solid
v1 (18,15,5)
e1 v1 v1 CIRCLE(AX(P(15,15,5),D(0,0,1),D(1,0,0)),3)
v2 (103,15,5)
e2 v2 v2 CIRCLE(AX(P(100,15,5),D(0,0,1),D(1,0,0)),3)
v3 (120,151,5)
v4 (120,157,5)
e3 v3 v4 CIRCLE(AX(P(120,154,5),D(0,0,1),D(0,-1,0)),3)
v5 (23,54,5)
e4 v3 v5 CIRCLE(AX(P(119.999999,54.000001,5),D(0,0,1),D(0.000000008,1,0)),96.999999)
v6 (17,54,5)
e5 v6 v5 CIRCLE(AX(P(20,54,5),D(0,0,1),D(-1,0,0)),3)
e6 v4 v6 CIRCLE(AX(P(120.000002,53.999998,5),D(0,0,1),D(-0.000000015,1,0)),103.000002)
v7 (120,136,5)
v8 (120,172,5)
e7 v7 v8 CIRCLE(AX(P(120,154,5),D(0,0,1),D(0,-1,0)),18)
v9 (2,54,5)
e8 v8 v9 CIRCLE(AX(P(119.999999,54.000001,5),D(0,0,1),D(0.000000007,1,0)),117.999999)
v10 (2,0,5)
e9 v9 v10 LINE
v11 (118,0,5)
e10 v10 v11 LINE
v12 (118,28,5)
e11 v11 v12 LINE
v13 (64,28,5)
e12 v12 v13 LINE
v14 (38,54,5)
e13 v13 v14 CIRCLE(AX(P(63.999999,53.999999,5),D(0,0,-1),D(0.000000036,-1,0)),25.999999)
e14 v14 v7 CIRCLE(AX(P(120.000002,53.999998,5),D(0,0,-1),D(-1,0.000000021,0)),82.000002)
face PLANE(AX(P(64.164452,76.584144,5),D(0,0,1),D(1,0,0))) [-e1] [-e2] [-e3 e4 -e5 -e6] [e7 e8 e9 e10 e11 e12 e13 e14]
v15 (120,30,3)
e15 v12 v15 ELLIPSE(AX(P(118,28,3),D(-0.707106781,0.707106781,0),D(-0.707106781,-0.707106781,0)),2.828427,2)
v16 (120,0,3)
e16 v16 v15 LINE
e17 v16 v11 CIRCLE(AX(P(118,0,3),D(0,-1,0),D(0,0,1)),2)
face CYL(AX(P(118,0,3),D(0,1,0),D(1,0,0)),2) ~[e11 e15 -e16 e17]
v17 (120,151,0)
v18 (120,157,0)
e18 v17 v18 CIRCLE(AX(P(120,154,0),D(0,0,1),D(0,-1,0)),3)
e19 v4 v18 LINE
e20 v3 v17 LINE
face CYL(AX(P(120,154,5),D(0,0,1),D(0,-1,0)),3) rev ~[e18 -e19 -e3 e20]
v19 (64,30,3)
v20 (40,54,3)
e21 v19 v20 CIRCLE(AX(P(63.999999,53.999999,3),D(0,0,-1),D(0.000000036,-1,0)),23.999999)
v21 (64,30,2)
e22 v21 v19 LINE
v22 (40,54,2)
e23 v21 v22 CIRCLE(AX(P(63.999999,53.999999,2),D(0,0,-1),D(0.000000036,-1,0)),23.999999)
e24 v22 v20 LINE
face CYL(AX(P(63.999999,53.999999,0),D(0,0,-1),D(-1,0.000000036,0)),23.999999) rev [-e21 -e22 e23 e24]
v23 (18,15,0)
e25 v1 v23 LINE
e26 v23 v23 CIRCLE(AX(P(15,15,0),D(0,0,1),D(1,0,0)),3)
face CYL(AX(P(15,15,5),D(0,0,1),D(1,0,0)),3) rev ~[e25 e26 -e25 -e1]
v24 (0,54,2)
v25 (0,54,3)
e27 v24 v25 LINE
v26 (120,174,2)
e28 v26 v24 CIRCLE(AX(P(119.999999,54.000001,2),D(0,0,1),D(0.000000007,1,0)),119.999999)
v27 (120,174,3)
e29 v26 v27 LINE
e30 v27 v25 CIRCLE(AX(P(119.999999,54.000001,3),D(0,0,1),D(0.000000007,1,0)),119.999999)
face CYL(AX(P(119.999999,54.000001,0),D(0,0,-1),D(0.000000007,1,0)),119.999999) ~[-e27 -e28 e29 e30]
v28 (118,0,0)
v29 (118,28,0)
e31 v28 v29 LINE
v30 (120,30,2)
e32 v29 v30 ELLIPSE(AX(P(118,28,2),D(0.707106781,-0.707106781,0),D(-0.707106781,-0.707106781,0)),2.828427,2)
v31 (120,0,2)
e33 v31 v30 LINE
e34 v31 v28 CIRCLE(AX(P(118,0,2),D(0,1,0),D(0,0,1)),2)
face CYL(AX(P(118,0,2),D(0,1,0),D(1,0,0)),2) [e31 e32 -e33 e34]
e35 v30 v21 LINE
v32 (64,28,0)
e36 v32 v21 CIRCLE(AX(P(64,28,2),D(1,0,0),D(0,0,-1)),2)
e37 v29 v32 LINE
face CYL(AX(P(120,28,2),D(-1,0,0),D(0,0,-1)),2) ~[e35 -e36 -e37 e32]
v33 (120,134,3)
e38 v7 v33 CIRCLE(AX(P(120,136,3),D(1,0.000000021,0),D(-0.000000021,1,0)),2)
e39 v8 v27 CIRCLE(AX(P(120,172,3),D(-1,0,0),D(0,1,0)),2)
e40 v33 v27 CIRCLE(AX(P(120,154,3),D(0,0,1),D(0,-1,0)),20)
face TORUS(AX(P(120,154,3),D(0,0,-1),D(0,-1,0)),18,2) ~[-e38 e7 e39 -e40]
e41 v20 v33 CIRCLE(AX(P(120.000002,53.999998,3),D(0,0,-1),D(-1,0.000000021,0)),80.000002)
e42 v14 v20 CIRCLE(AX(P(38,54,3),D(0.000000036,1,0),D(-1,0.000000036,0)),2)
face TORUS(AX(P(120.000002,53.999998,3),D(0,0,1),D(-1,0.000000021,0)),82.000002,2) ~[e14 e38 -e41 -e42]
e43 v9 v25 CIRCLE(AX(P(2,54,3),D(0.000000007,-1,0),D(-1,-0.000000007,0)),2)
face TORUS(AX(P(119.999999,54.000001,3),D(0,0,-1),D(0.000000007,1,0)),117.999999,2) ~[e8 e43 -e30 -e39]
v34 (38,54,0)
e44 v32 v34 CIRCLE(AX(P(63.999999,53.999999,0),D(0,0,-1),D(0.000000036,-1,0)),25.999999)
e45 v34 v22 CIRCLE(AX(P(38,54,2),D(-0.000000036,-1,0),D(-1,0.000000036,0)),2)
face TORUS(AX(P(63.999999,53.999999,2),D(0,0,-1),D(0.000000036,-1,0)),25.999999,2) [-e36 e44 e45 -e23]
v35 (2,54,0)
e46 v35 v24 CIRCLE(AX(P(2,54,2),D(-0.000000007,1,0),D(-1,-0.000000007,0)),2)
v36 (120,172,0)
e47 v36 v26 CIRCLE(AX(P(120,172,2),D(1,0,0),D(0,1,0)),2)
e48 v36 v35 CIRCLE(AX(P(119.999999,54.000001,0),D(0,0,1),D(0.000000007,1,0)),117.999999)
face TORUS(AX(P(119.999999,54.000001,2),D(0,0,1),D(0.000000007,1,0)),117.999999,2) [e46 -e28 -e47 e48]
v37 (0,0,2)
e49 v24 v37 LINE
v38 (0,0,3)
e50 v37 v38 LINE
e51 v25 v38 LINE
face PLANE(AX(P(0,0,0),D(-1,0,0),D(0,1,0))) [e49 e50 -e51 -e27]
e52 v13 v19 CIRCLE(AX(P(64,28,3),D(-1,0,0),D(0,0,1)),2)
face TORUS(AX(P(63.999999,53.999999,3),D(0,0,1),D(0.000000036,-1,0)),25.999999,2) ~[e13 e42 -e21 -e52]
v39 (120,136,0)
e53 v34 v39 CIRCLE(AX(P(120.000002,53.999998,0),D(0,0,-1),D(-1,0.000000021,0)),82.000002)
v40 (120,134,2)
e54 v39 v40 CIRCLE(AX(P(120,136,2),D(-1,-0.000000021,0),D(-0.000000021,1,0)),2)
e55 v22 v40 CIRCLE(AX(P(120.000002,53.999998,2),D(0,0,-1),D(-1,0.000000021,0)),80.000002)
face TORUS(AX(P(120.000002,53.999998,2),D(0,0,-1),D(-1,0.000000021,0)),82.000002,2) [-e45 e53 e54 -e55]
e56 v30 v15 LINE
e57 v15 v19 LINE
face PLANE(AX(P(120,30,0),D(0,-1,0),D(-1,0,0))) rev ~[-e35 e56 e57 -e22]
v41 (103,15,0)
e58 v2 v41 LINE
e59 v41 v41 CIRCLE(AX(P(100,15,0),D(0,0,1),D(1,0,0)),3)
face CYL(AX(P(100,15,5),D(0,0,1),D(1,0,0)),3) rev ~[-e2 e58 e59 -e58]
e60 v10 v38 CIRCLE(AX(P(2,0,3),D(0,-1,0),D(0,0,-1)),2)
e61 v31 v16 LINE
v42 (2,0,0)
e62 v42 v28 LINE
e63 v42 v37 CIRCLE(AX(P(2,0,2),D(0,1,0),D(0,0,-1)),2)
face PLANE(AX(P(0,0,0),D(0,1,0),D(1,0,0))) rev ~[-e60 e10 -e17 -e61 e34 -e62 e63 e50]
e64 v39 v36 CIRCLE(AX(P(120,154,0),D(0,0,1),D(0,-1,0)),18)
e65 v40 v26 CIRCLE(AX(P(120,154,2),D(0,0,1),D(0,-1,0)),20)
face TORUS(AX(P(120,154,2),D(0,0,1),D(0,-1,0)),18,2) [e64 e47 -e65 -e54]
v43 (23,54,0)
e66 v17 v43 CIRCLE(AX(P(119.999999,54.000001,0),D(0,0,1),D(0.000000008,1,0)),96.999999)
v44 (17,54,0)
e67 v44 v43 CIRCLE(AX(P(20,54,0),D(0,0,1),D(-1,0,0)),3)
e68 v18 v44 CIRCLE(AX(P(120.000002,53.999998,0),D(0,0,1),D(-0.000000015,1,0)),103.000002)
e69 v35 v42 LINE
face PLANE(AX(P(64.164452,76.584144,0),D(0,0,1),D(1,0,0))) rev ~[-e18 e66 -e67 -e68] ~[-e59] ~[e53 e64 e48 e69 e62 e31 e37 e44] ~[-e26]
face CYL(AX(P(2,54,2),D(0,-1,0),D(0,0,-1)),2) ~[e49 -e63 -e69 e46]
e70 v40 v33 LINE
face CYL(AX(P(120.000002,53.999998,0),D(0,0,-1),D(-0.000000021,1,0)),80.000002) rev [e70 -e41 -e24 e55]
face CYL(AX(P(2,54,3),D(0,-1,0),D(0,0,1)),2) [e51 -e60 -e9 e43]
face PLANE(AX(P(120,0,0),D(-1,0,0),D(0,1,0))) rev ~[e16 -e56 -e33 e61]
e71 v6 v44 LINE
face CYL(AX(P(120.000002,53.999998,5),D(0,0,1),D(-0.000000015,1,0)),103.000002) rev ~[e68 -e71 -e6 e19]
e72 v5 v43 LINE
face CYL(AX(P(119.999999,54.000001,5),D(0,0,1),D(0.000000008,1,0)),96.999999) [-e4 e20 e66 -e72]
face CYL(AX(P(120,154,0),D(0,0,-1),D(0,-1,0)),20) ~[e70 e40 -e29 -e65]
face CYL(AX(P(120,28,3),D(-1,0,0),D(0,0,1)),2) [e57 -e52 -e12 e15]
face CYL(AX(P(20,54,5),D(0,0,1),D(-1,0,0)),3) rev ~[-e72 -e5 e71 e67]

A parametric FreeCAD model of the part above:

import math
import FreeCAD as App
import Part
import Sketcher
Q = App.Units.Quantity


def edges_at(feature, points):
    """Names of the edges that pass closest to the given points."""
    edges = feature.Shape.Edges
    near = lambda p: min(range(len(edges)), key=lambda i: edges[i].distToShape(Part.Vertex(*p))[0])
    return sorted({f"Edge{near(p) + 1}" for p in points})

doc = App.newDocument("Part")
params = doc.addObject("Spreadsheet::Sheet", "Params")
for row, (alias, value) in enumerate([
    ("sketch1_radius", "23.999999 mm"),
    ("sketch1_radius2", "80.000002 mm"),
    ("sketch1_radius3", "20 mm"),
    ("sketch1_height", "30 mm"),
    ("pad1_length", "5 mm"),
    ("sketch2_diameter", "6 mm"),
    ("sketch3_radius", "103.000002 mm"),
    ("sketch3_radius2", "3 mm"),
    ("fillet_radius", "2 mm"),
], start=1):
    params.set(f"A{row}", alias)
    params.set(f"B{row}", "=" + value)
    params.setAlias(f"B{row}", alias)

body = doc.addObject("PartDesign::Body", "Body")

# Sketch on XY plane
sketch1 = doc.addObject("Sketcher::SketchObject", "Sketch")
body.addObject(sketch1)
sketch1.AttachmentSupport = (doc.XY_Plane, [""])
sketch1.MapMode = "FlatFace"
sketch1.addGeometry([
    Part.LineSegment(App.Vector(0, 0, 0), App.Vector(120, 0, 0)),  # 0
    Part.LineSegment(App.Vector(120, 0, 0), App.Vector(120, 30, 0)),  # 1
    Part.LineSegment(App.Vector(120, 30, 0), App.Vector(64, 30, 0)),  # 2
    Part.ArcOfCircle(Part.Circle(App.Vector(64, 54, 0), App.Vector(0, 0, 1), 24), math.radians(180), math.radians(270)),  # 3
    Part.ArcOfCircle(Part.Circle(App.Vector(120, 54, 0), App.Vector(0, 0, 1), 80), math.radians(90), math.radians(180)),  # 4
    Part.ArcOfCircle(Part.Circle(App.Vector(120, 154, 0), App.Vector(0, 0, 1), 20), math.radians(-90), math.radians(90)),  # 5
    Part.ArcOfCircle(Part.Circle(App.Vector(120, 54, 0), App.Vector(0, 0, 1), 120), math.radians(90), math.radians(180)),  # 6
    Part.LineSegment(App.Vector(0, 54, 0), App.Vector(0, 0, 0)),  # 7
], False)
sketch1.addConstraint([
    Sketcher.Constraint("Coincident", 0, 2, 1, 1),
    Sketcher.Constraint("Coincident", 1, 2, 2, 1),
    Sketcher.Constraint("Tangent", 2, 2, 3, 2),
    Sketcher.Constraint("Tangent", 3, 1, 4, 2),
    Sketcher.Constraint("Tangent", 4, 1, 5, 1),
    Sketcher.Constraint("Tangent", 5, 2, 6, 1),
    Sketcher.Constraint("Tangent", 6, 2, 7, 1),
    Sketcher.Constraint("Coincident", 7, 2, 0, 1),
    Sketcher.Constraint("Horizontal", 0),
    Sketcher.Constraint("Vertical", 1),
    Sketcher.Constraint("Horizontal", 2),
    Sketcher.Constraint("Vertical", 7),
    Sketcher.Constraint("Coincident", 7, 2, -1, 1),
    Sketcher.Constraint("Coincident", 6, 3, 4, 3),
    Sketcher.Constraint("Horizontal", 3, 3, 4, 3),
    Sketcher.Constraint("Vertical", 4, 3, 5, 3),
    Sketcher.Constraint("Vertical", 6, 3, 0, 2),
    Sketcher.Constraint("Radius", 3, Q("23.999999 mm")),
    Sketcher.Constraint("Radius", 4, Q("80.000002 mm")),
    Sketcher.Constraint("Radius", 5, Q("20 mm")),
    Sketcher.Constraint("DistanceY", 1, 1, 1, 2, Q("30 mm")),
])
sketch1.setExpression("Constraints[17]", "Params.sketch1_radius")
sketch1.setExpression("Constraints[18]", "Params.sketch1_radius2")
sketch1.setExpression("Constraints[19]", "Params.sketch1_radius3")
sketch1.setExpression("Constraints[20]", "Params.sketch1_height")
pad1 = doc.addObject("PartDesign::Pad", "Pad")
body.addObject(pad1)
pad1.Profile = sketch1
pad1.setExpression("Length", "Params.pad1_length")

# Sketch on XY plane
sketch2 = doc.addObject("Sketcher::SketchObject", "Sketch001")
body.addObject(sketch2)
sketch2.AttachmentSupport = (doc.XY_Plane, [""])
sketch2.MapMode = "FlatFace"
sketch2.AttachmentOffset = App.Placement(App.Vector(0, 0, 5), App.Rotation())
sketch2.addGeometry([
    Part.Circle(App.Vector(15, 15, 0), App.Vector(0, 0, 1), 3),
    Part.Circle(App.Vector(100, 15, 0), App.Vector(0, 0, 1), 3),
], False)
sketch2.addConstraint([
    Sketcher.Constraint("Equal", 0, 1),
    Sketcher.Constraint("Horizontal", 0, 3, 1, 3),
    Sketcher.Constraint("Diameter", 0, Q("6 mm")),
    Sketcher.Constraint("DistanceX", -1, 1, 0, 3, Q("15 mm")),
    Sketcher.Constraint("DistanceY", -1, 1, 0, 3, Q("15 mm")),
    Sketcher.Constraint("DistanceX", -1, 1, 1, 3, Q("100 mm")),
])
sketch2.setExpression("Constraints[2]", "Params.sketch2_diameter")
pocket1 = doc.addObject("PartDesign::Pocket", "Pocket")
body.addObject(pocket1)
pocket1.Profile = sketch2
pocket1.Type = "ThroughAll"

# Sketch on XY plane
sketch3 = doc.addObject("Sketcher::SketchObject", "Sketch002")
body.addObject(sketch3)
sketch3.AttachmentSupport = (doc.XY_Plane, [""])
sketch3.MapMode = "FlatFace"
sketch3.AttachmentOffset = App.Placement(App.Vector(0, 0, 5), App.Rotation())
sketch3.addGeometry([
    Part.ArcOfCircle(Part.Circle(App.Vector(120, 54, 0), App.Vector(0, 0, 1), 103), math.radians(90), math.radians(180)),
    Part.ArcOfCircle(Part.Circle(App.Vector(20, 54, 0), App.Vector(0, 0, 1), 3), math.radians(180), math.radians(360)),
    Part.ArcOfCircle(Part.Circle(App.Vector(120, 54, 0), App.Vector(0, 0, 1), 97), math.radians(90), math.radians(180)),
    Part.ArcOfCircle(Part.Circle(App.Vector(120, 154, 0), App.Vector(0, 0, 1), 3), math.radians(-90), math.radians(90)),
], False)
sketch3.addConstraint([
    Sketcher.Constraint("Tangent", 0, 2, 1, 1),
    Sketcher.Constraint("Tangent", 1, 2, 2, 2),
    Sketcher.Constraint("Tangent", 2, 1, 3, 1),
    Sketcher.Constraint("Tangent", 3, 2, 0, 1),
    Sketcher.Constraint("Coincident", 2, 3, 0, 3),
    Sketcher.Constraint("Horizontal", 0, 3, 1, 3),
    Sketcher.Constraint("Vertical", 2, 3, 3, 3),
    Sketcher.Constraint("Radius", 0, Q("103.000002 mm")),
    Sketcher.Constraint("Radius", 1, Q("3 mm")),
    Sketcher.Constraint("DistanceX", -1, 1, 0, 3, Q("120.000002 mm")),
    Sketcher.Constraint("DistanceY", -1, 1, 0, 3, Q("53.999998 mm")),
])
sketch3.setExpression("Constraints[7]", "Params.sketch3_radius")
sketch3.setExpression("Constraints[8]", "Params.sketch3_radius2")
pocket2 = doc.addObject("PartDesign::Pocket", "Pocket001")
body.addObject(pocket2)
pocket2.Profile = sketch3
pocket2.Type = "ThroughAll"
doc.recompute()

fillet = doc.addObject("PartDesign::Fillet", "Fillet")
body.addObject(fillet)
fillet.Base = (pocket2, edges_at(pocket2, [
    (92, 30, 5),
    (92, 30, 0),
    (47.029, 37.029, 5),
    (63.431, 110.569, 5),
    (140, 154, 5),
    (35.147, 138.853, 5),
    (0, 27, 5),
    (47.029, 37.029, 0),
    (63.431, 110.569, 0),
    (140, 154, 0),
    (35.147, 138.853, 0),
    (0, 27, 0),
    (120, 15, 0),
    (120, 15, 5),
]))
fillet.setExpression("Radius", "Params.fillet_radius")

doc.recompute()
